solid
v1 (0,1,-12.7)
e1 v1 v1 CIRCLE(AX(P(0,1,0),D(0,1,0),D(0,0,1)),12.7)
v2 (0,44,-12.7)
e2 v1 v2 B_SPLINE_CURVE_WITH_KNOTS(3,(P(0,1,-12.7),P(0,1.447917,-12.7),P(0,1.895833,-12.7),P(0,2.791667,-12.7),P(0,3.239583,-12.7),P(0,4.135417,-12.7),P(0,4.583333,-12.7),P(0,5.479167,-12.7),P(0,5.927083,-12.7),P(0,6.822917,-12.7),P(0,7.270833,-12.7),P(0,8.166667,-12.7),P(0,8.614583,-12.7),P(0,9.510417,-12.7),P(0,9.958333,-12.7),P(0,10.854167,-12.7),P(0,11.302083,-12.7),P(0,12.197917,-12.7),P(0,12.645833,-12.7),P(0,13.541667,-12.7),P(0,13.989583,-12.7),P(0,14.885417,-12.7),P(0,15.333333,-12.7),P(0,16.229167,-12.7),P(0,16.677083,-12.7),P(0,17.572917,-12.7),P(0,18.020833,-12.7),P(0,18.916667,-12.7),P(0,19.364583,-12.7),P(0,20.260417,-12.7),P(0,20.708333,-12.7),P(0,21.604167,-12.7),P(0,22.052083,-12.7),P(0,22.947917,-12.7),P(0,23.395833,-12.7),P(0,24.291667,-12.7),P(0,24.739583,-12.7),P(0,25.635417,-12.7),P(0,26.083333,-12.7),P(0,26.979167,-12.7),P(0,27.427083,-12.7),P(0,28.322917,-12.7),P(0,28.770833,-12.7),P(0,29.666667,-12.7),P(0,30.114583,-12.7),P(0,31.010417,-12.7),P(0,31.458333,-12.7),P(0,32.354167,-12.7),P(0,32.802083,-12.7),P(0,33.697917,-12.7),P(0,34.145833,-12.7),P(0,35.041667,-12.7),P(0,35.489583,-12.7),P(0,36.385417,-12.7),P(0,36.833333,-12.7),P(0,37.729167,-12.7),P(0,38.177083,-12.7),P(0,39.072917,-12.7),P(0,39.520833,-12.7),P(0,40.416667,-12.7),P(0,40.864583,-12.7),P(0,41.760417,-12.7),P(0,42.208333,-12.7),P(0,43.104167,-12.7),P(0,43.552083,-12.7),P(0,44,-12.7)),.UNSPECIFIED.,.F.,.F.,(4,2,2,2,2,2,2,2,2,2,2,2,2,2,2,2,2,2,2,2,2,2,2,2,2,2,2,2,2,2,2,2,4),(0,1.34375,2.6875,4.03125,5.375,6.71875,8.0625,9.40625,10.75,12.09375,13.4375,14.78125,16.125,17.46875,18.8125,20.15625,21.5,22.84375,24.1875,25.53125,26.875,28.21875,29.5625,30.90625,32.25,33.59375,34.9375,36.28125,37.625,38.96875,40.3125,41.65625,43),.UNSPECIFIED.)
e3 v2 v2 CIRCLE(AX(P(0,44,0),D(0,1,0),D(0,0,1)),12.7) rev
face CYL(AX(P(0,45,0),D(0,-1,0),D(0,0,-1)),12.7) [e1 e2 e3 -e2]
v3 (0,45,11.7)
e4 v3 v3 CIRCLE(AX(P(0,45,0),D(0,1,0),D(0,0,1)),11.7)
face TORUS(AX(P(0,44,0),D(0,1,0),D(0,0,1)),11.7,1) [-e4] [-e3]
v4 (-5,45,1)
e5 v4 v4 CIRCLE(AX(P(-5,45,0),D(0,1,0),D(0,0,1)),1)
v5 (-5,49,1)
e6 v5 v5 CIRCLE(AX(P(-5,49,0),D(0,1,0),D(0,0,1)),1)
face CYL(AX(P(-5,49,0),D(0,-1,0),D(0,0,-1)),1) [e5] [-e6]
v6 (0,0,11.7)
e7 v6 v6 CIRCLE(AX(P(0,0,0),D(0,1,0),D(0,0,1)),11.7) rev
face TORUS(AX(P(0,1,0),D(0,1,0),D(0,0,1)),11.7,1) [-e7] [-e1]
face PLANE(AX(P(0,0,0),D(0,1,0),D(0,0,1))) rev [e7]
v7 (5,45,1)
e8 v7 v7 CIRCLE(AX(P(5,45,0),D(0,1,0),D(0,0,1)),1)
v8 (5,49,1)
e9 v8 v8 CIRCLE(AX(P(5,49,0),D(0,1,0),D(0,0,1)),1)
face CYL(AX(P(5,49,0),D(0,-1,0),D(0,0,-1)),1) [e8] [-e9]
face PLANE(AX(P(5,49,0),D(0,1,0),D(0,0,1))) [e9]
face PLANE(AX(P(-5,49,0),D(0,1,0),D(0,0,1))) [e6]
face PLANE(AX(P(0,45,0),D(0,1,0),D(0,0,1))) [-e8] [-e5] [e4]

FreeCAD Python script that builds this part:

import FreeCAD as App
import Part
import Sketcher
from FreeCAD import Vector


def edges_at(feature, points):
    """Names of the edges that pass closest to the given points."""
    edges = feature.Shape.Edges
    near = lambda p: min(range(len(edges)), key=lambda i: edges[i].distToShape(Part.Vertex(*p))[0])
    return sorted({f"Edge{near(p) + 1}" for p in points})

doc = App.newDocument("Part")
body = doc.addObject("PartDesign::Body", "Body")

# Sketch on XZ plane
sketch1 = body.newObject("Sketcher::SketchObject", "Sketch")
sketch1.AttachmentSupport = (doc.getObject("XZ_Plane"), [""])
sketch1.MapMode = "FlatFace"
sketch1.addGeometry(Part.Circle(Vector(0, 0, 0), Vector(0, 0, 1), 13), False)
sketch1.addConstraint([
    Sketcher.Constraint("Coincident", 0, 3, -1, 1),
    Sketcher.Constraint("Diameter", 0, 25.4),
])
pad1 = body.newObject("PartDesign::Pad", "Pad")
pad1.Profile = sketch1
pad1.Length = 45
pad1.Reversed = True
doc.recompute()

fillet = body.newObject("PartDesign::Fillet", "Fillet")
fillet.Base = (pad1, edges_at(pad1, [(0, 0, 12.7), (0, 45, 12.7)]))
fillet.Radius = 1

# Sketch on XZ plane
sketch2 = body.newObject("Sketcher::SketchObject", "Sketch001")
sketch2.AttachmentSupport = (doc.getObject("XZ_Plane"), [""])
sketch2.MapMode = "FlatFace"
sketch2.AttachmentOffset = App.Placement(Vector(0, 0, -45), App.Rotation())
sketch2.addGeometry([
    Part.Circle(Vector(5, 0, 0), Vector(0, 0, 1), 1),
    Part.Circle(Vector(-5, 0, 0), Vector(0, 0, 1), 1),
], False)
sketch2.addConstraint([
    Sketcher.Constraint("Equal", 0, 1),
    Sketcher.Constraint("Symmetric", 0, 3, 1, 3, -1, 1),
    Sketcher.Constraint("PointOnObject", 0, 3, -1),
    Sketcher.Constraint("Diameter", 0, 2.0),
    Sketcher.Constraint("DistanceX", -1, 1, 0, 3, 5.0),
])
pad2 = body.newObject("PartDesign::Pad", "Pad001")
pad2.Profile = sketch2
pad2.Length = 4
pad2.Reversed = True

doc.recompute()
